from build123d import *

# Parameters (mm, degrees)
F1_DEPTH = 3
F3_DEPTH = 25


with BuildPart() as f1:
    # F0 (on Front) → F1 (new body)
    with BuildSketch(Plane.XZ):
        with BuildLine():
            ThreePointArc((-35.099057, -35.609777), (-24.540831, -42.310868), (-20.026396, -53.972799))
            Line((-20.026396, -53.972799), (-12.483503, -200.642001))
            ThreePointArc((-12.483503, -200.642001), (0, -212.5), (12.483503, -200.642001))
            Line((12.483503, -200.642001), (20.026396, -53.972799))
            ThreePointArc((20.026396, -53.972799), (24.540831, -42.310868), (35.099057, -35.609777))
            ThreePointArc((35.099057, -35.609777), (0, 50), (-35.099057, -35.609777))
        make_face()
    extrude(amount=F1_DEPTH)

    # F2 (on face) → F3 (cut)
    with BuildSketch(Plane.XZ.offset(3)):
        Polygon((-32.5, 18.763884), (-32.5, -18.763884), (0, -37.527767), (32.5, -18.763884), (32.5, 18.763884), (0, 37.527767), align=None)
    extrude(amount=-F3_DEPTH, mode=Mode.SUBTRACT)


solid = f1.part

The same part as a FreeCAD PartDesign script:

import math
import FreeCAD as App
import Part
import Sketcher
from FreeCAD import Vector
Q = App.Units.Quantity


def add_polygon(sketch, points):
    """Adds a closed chain of lines whose ends are joined by coincident constraints."""
    first, n = sketch.GeometryCount, len(points)
    for a, b in zip(points, points[1:] + points[:1]):
        sketch.addGeometry(Part.LineSegment(App.Vector(*a, 0), App.Vector(*b, 0)), False)
    for i in range(n):
        sketch.addConstraint(Sketcher.Constraint("Coincident", first + i, 2, first + (i + 1) % n, 1))

doc = App.newDocument("Part")
body = doc.addObject("PartDesign::Body", "Body")

# Sketch on XZ plane
sketch1 = doc.addObject("Sketcher::SketchObject", "Sketch")
body.addObject(sketch1)
sketch1.AttachmentSupport = (doc.XZ_Plane, [""])
sketch1.MapMode = "FlatFace"
sketch1.addGeometry([
    Part.ArcOfCircle(Part.Circle(Vector(-40, -55, 0), Vector(0, 0, 1), 20), math.radians(3), math.radians(76)),  # 0
    Part.LineSegment(Vector(-20, -54, 0), Vector(-12, -201, 0)),  # 1
    Part.ArcOfCircle(Part.Circle(Vector(0, -200, 0), Vector(0, 0, 1), 13), math.radians(-177), math.radians(-3)),  # 2
    Part.LineSegment(Vector(12, -201, 0), Vector(20, -54, 0)),  # 3
    Part.ArcOfCircle(Part.Circle(Vector(40, -55, 0), Vector(0, 0, 1), 20), math.radians(104), math.radians(177)),  # 4
    Part.ArcOfCircle(Part.Circle(Vector(0, 0, 0), Vector(0, 0, 1), 50), math.radians(-45), math.radians(225)),  # 5
], False)
sketch1.addConstraint([
    Sketcher.Constraint("Tangent", 0, 1, 1, 1),
    Sketcher.Constraint("Tangent", 1, 2, 2, 1),
    Sketcher.Constraint("Tangent", 2, 2, 3, 1),
    Sketcher.Constraint("Tangent", 3, 2, 4, 2),
    Sketcher.Constraint("Coincident", 4, 1, 5, 1),
    Sketcher.Constraint("Coincident", 5, 2, 0, 2),
    Sketcher.Constraint("Coincident", 5, 3, -1, 1),
    Sketcher.Constraint("Equal", 0, 4),
    Sketcher.Constraint("Symmetric", 0, 3, 4, 3, -2),
    Sketcher.Constraint("PointOnObject", 2, 3, -2),
    Sketcher.Constraint("Radius", 0, Q("20.000002 mm")),
    Sketcher.Constraint("Radius", 5, Q("50 mm")),
    Sketcher.Constraint("Radius", 2, Q("12.500001 mm")),
    Sketcher.Constraint("DistanceX", 0, 3, -1, 1, Q("40.000002 mm")),
    Sketcher.Constraint("DistanceY", 0, 3, -1, 1, Q("55.000002 mm")),
    Sketcher.Constraint("DistanceY", 2, 3, -1, 1, Q("199.999999 mm")),
])
pad1 = doc.addObject("PartDesign::Pad", "Pad")
body.addObject(pad1)
pad1.Profile = sketch1
pad1.Length = 3

# Sketch on XZ plane
sketch2 = doc.addObject("Sketcher::SketchObject", "Sketch001")
body.addObject(sketch2)
sketch2.AttachmentSupport = (doc.XZ_Plane, [""])
sketch2.MapMode = "FlatFace"
sketch2.AttachmentOffset = App.Placement(Vector(0, 0, 3), App.Rotation())
add_polygon(sketch2, [(-32, 19), (-32, -19), (0, -38), (32, -19), (32, 19), (0, 38)])  # lines 0-5
sketch2.addConstraint([
    Sketcher.Constraint("Vertical", 0),
    Sketcher.Constraint("Vertical", 3),
    Sketcher.Constraint("Symmetric", 0, 2, 3, 2, -1, 1),
    Sketcher.Constraint("Symmetric", 1, 2, 4, 2, -1, 1),
    Sketcher.Constraint("PointOnObject", 1, 2, -2),
    Sketcher.Constraint("Parallel", 2, 5),
    Sketcher.Constraint("Horizontal", 0, 2, 2, 2),
    Sketcher.Constraint("Angle", 1, Q("-29.999999 deg")),
    Sketcher.Constraint("DistanceX", 0, 2, 2, 2, Q("65 mm")),
    Sketcher.Constraint("DistanceY", 0, 2, 0, 1, Q("37.527768 mm")),
])
pocket1 = doc.addObject("PartDesign::Pocket", "Pocket")
body.addObject(pocket1)
pocket1.Profile = sketch2
pocket1.Length = 25

doc.recompute()
